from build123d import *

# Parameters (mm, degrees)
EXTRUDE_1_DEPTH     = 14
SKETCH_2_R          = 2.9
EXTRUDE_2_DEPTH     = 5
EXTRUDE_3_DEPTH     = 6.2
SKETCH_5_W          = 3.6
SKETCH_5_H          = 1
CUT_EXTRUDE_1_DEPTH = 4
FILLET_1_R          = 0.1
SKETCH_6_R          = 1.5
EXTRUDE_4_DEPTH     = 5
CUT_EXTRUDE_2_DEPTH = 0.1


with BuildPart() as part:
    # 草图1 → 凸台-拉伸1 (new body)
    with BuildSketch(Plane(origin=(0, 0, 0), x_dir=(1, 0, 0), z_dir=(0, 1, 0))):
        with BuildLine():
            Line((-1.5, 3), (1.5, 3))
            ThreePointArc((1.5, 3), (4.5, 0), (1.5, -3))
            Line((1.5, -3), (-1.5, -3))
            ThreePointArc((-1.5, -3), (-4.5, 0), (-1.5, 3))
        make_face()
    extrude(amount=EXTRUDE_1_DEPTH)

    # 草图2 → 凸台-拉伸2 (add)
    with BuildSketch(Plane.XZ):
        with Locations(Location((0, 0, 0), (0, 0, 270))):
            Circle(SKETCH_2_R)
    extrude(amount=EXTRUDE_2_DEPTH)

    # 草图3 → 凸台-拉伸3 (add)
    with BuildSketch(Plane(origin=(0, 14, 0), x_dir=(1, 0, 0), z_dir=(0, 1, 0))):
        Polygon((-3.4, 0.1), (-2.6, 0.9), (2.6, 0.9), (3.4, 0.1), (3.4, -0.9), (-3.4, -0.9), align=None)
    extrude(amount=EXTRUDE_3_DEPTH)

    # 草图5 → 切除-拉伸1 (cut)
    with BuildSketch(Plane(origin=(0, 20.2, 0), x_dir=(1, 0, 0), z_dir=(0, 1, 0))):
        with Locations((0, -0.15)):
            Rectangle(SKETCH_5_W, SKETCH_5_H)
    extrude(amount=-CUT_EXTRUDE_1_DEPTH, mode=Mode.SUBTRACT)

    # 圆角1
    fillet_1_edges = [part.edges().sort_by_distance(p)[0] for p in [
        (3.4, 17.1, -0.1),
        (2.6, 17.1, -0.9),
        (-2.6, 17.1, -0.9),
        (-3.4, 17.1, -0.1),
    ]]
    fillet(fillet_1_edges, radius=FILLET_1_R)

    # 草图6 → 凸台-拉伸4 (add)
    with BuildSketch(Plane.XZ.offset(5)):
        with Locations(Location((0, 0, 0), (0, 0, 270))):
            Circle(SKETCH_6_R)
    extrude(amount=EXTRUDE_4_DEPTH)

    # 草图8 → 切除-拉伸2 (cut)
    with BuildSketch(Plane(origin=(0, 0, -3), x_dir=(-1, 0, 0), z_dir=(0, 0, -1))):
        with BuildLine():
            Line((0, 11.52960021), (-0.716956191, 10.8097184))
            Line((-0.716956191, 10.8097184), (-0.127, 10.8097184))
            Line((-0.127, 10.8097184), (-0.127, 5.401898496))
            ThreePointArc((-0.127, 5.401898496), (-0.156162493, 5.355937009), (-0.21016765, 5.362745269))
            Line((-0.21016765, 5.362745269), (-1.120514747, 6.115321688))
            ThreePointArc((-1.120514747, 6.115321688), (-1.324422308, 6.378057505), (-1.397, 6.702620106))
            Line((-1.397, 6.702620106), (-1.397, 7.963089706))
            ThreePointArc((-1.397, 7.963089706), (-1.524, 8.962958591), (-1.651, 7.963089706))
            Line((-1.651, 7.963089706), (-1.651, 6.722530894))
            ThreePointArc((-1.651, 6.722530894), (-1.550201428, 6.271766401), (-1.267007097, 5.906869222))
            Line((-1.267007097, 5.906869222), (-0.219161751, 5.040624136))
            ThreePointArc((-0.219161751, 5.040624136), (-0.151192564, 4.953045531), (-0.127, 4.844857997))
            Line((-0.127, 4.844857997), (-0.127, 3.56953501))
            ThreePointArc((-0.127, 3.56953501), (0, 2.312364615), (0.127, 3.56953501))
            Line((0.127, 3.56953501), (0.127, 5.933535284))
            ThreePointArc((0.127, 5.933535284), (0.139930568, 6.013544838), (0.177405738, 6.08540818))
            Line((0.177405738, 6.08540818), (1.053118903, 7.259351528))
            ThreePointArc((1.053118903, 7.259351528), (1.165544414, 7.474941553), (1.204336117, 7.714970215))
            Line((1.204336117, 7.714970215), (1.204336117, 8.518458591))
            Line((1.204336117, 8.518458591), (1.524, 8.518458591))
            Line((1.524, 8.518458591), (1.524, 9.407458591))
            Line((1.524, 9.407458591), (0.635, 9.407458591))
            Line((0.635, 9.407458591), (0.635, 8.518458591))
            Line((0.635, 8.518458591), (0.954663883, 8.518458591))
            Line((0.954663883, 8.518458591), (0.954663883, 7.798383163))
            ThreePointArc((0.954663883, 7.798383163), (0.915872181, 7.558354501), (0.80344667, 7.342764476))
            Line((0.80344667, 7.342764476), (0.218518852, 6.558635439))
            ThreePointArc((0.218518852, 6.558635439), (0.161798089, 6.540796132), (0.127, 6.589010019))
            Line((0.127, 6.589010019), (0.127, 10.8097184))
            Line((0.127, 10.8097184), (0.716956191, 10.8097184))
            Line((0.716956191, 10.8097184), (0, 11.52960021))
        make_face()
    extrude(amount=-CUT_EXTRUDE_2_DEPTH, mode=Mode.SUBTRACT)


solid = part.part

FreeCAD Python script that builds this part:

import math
import FreeCAD as App
import Part
import Sketcher
from FreeCAD import Vector
Q = App.Units.Quantity


def edges_at(feature, points):
    """Names of the edges that pass closest to the given points."""
    edges = feature.Shape.Edges
    near = lambda p: min(range(len(edges)), key=lambda i: edges[i].distToShape(Part.Vertex(*p))[0])
    return sorted({f"Edge{near(p) + 1}" for p in points})


def add_polygon(sketch, points):
    """Adds a closed chain of lines whose ends are joined by coincident constraints."""
    first, n = sketch.GeometryCount, len(points)
    for a, b in zip(points, points[1:] + points[:1]):
        sketch.addGeometry(Part.LineSegment(App.Vector(*a, 0), App.Vector(*b, 0)), False)
    for i in range(n):
        sketch.addConstraint(Sketcher.Constraint("Coincident", first + i, 2, first + (i + 1) % n, 1))

doc = App.newDocument("Part")
body = doc.addObject("PartDesign::Body", "Body")

# Sketch on XZ plane
sketch1 = body.newObject("Sketcher::SketchObject", "Sketch")
sketch1.AttachmentSupport = (doc.getObject("XZ_Plane"), [""])
sketch1.MapMode = "FlatFace"
sketch1.addGeometry(Part.LineSegment(Vector(1.5, -3, 0), Vector(-1.5, -3, 0)), False)
sketch1.addGeometry(Part.ArcOfCircle(Part.Circle(Vector(-1.5, 0, 0), Vector(0, 0, 1), 3), math.radians(90), math.radians(270)), False)
sketch1.addGeometry(Part.LineSegment(Vector(-1.5, 3, 0), Vector(1.5, 3, 0)), False)
sketch1.addGeometry(Part.ArcOfCircle(Part.Circle(Vector(1.5, 0, 0), Vector(0, 0, 1), 3), math.radians(-90), math.radians(90)), False)
sketch1.addConstraint(Sketcher.Constraint("Tangent", 0, 2, 1, 2))
sketch1.addConstraint(Sketcher.Constraint("Tangent", 1, 1, 2, 1))
sketch1.addConstraint(Sketcher.Constraint("Tangent", 2, 2, 3, 2))
sketch1.addConstraint(Sketcher.Constraint("Tangent", 3, 1, 0, 1))
sketch1.addConstraint(Sketcher.Constraint("Horizontal", 0))
sketch1.addConstraint(Sketcher.Constraint("Horizontal", 2))
sketch1.addConstraint(Sketcher.Constraint("Symmetric", 1, 3, 3, 3, -1, 1))
sketch1.addConstraint(Sketcher.Constraint("Radius", 1, Q("3 mm")))
sketch1.addConstraint(Sketcher.Constraint("DistanceX", 0, 2, 0, 1, Q("3 mm")))
pad1 = body.newObject("PartDesign::Pad", "Pad")
pad1.Profile = sketch1
pad1.Length = 14
pad1.Reversed = True

# Sketch on XZ plane
sketch2 = body.newObject("Sketcher::SketchObject", "Sketch001")
sketch2.AttachmentSupport = (doc.getObject("XZ_Plane"), [""])
sketch2.MapMode = "FlatFace"
sketch2.addGeometry(Part.Circle(Vector(0, 0, 0), Vector(0, 0, 1), 2.9), False)
sketch2.addConstraint(Sketcher.Constraint("Coincident", 0, 3, -1, 1))
sketch2.addConstraint(Sketcher.Constraint("Diameter", 0, Q("5.8 mm")))
pad2 = body.newObject("PartDesign::Pad", "Pad001")
pad2.Profile = sketch2
pad2.Length = 5

# Sketch on XZ plane
sketch3 = body.newObject("Sketcher::SketchObject", "Sketch002")
sketch3.AttachmentSupport = (doc.getObject("XZ_Plane"), [""])
sketch3.MapMode = "FlatFace"
sketch3.AttachmentOffset = App.Placement(Vector(0, 0, -14), App.Rotation())
add_polygon(sketch3, [(-2.6, -0.9), (-3.4, -0.1), (-3.4, 0.9), (3.4, 0.9), (3.4, -0.1), (2.6, -0.9)])  # lines 0-5
sketch3.addConstraint(Sketcher.Constraint("Vertical", 1))
sketch3.addConstraint(Sketcher.Constraint("Horizontal", 2))
sketch3.addConstraint(Sketcher.Constraint("Vertical", 3))
sketch3.addConstraint(Sketcher.Constraint("Horizontal", 5))
sketch3.addConstraint(Sketcher.Constraint("Symmetric", 0, 2, 3, 2, -2))
sketch3.addConstraint(Sketcher.Constraint("Perpendicular", 0, 4))
sketch3.addConstraint(Sketcher.Constraint("Equal", 0, 4))
sketch3.addConstraint(Sketcher.Constraint("DistanceY", 1, 1, 1, 2, Q("1 mm")))
sketch3.addConstraint(Sketcher.Constraint("DistanceX", 2, 1, 2, 2, Q("6.8 mm")))
sketch3.addConstraint(Sketcher.Constraint("DistanceX", 5, 2, 5, 1, Q("5.2 mm")))
sketch3.addConstraint(Sketcher.Constraint("DistanceY", 0, 2, -1, 1, Q("0.1 mm")))
pad3 = body.newObject("PartDesign::Pad", "Pad002")
pad3.Profile = sketch3
pad3.Length = 6.2
pad3.Reversed = True

# Sketch on XZ plane
sketch4 = body.newObject("Sketcher::SketchObject", "Sketch003")
sketch4.AttachmentSupport = (doc.getObject("XZ_Plane"), [""])
sketch4.MapMode = "FlatFace"
sketch4.AttachmentOffset = App.Placement(Vector(0, 0, -20.2), App.Rotation())
add_polygon(sketch4, [(-1.8, -0.3), (-1.8, 0.7), (1.8, 0.7), (1.8, -0.3)])  # lines 0-3
sketch4.addConstraint(Sketcher.Constraint("Vertical", 0))
sketch4.addConstraint(Sketcher.Constraint("Horizontal", 1))
sketch4.addConstraint(Sketcher.Constraint("Vertical", 2))
sketch4.addConstraint(Sketcher.Constraint("Horizontal", 3))
sketch4.addConstraint(Sketcher.Constraint("DistanceY", 0, 1, 0, 2, Q("1 mm")))
sketch4.addConstraint(Sketcher.Constraint("DistanceX", 1, 1, 1, 2, Q("3.6 mm")))
sketch4.addConstraint(Sketcher.Constraint("DistanceX", 0, 2, -1, 1, Q("1.8 mm")))
sketch4.addConstraint(Sketcher.Constraint("DistanceY", -1, 1, 0, 2, Q("0.65 mm")))
pocket1 = body.newObject("PartDesign::Pocket", "Pocket")
pocket1.Profile = sketch4
pocket1.Length = 4
pocket1.Reversed = True
doc.recompute()

fillet = body.newObject("PartDesign::Fillet", "Fillet")
fillet.Base = (pocket1, edges_at(pocket1, [
    (3.4, 17.1, -0.1),
    (2.6, 17.1, -0.9),
    (-2.6, 17.1, -0.9),
    (-3.4, 17.1, -0.1),
]))
fillet.Radius = 0.1

# Sketch on XZ plane
sketch5 = body.newObject("Sketcher::SketchObject", "Sketch004")
sketch5.AttachmentSupport = (doc.getObject("XZ_Plane"), [""])
sketch5.MapMode = "FlatFace"
sketch5.AttachmentOffset = App.Placement(Vector(0, 0, 5), App.Rotation())
sketch5.addGeometry(Part.Circle(Vector(0, 0, 0), Vector(0, 0, 1), 1.5), False)
sketch5.addConstraint(Sketcher.Constraint("Coincident", 0, 3, -1, 1))
sketch5.addConstraint(Sketcher.Constraint("Diameter", 0, Q("3 mm")))
pad4 = body.newObject("PartDesign::Pad", "Pad003")
pad4.Profile = sketch5
pad4.Length = 5

# Sketch on XY plane
sketch6 = body.newObject("Sketcher::SketchObject", "Sketch005")
sketch6.AttachmentSupport = (doc.getObject("XY_Plane"), [""])
sketch6.MapMode = "FlatFace"
sketch6.AttachmentOffset = App.Placement(Vector(0, 0, -3), App.Rotation())
sketch6.addGeometry(Part.LineSegment(Vector(0, 11.53, 0), Vector(0.72, 10.81, 0)), False)
sketch6.addGeometry(Part.LineSegment(Vector(0.72, 10.81, 0), Vector(0.13, 10.81, 0)), False)
sketch6.addGeometry(Part.LineSegment(Vector(0.13, 10.81, 0), Vector(0.13, 5.4, 0)), False)
sketch6.addGeometry(Part.ArcOfCircle(Part.Circle(Vector(0.18, 5.4, 0), Vector(0, 0, 1), 0.05), math.radians(180), math.radians(310)), False)
sketch6.addGeometry(Part.LineSegment(Vector(0.21, 5.36, 0), Vector(1.12, 6.12, 0)), False)
sketch6.addGeometry(Part.ArcOfCircle(Part.Circle(Vector(0.64, 6.7, 0), Vector(0, 0, 1), 0.76), math.radians(-50), math.radians(0)), False)
sketch6.addGeometry(Part.LineSegment(Vector(1.4, 6.7, 0), Vector(1.4, 7.96, 0)), False)
sketch6.addGeometry(Part.ArcOfCircle(Part.Circle(Vector(1.52, 8.45, 0), Vector(0, 0, 1), 0.51), math.radians(-76), math.radians(256)), False)
sketch6.addGeometry(Part.LineSegment(Vector(1.65, 7.96, 0), Vector(1.65, 6.72, 0)), False)
sketch6.addGeometry(Part.ArcOfCircle(Part.Circle(Vector(0.59, 6.72, 0), Vector(0, 0, 1), 1.06), math.radians(-50), math.radians(0)), False)
sketch6.addGeometry(Part.LineSegment(Vector(1.27, 5.91, 0), Vector(0.22, 5.04, 0)), False)
sketch6.addGeometry(Part.ArcOfCircle(Part.Circle(Vector(0.38, 4.84, 0), Vector(0, 0, 1), 0.25), math.radians(130), math.radians(180)), False)
sketch6.addGeometry(Part.LineSegment(Vector(0.13, 4.84, 0), Vector(0.13, 3.57, 0)), False)
sketch6.addGeometry(Part.ArcOfCircle(Part.Circle(Vector(0, 2.95, 0), Vector(0, 0, 1), 0.64), math.radians(102), math.radians(438)), False)
sketch6.addGeometry(Part.LineSegment(Vector(-0.13, 3.57, 0), Vector(-0.13, 5.93, 0)), False)
sketch6.addGeometry(Part.ArcOfCircle(Part.Circle(Vector(-0.38, 5.93, 0), Vector(0, 0, 1), 0.25), math.radians(0), math.radians(37)), False)
sketch6.addGeometry(Part.LineSegment(Vector(-0.18, 6.09, 0), Vector(-1.05, 7.26, 0)), False)
sketch6.addGeometry(Part.ArcOfCircle(Part.Circle(Vector(-0.44, 7.71, 0), Vector(0, 0, 1), 0.76), math.radians(-180), math.radians(-143)), False)
sketch6.addGeometry(Part.LineSegment(Vector(-1.2, 7.71, 0), Vector(-1.2, 8.52, 0)), False)
sketch6.addGeometry(Part.LineSegment(Vector(-1.2, 8.52, 0), Vector(-1.52, 8.52, 0)), False)
sketch6.addGeometry(Part.LineSegment(Vector(-1.52, 8.52, 0), Vector(-1.52, 9.41, 0)), False)
sketch6.addGeometry(Part.LineSegment(Vector(-1.52, 9.41, 0), Vector(-0.64, 9.41, 0)), False)
sketch6.addGeometry(Part.LineSegment(Vector(-0.64, 9.41, 0), Vector(-0.64, 8.52, 0)), False)
sketch6.addGeometry(Part.LineSegment(Vector(-0.64, 8.52, 0), Vector(-0.95, 8.52, 0)), False)
sketch6.addGeometry(Part.LineSegment(Vector(-0.95, 8.52, 0), Vector(-0.95, 7.8, 0)), False)
sketch6.addGeometry(Part.ArcOfCircle(Part.Circle(Vector(-0.19, 7.8, 0), Vector(0, 0, 1), 0.76), math.radians(180), math.radians(217)), False)
sketch6.addGeometry(Part.LineSegment(Vector(-0.8, 7.34, 0), Vector(-0.22, 6.56, 0)), False)
sketch6.addGeometry(Part.ArcOfCircle(Part.Circle(Vector(-0.18, 6.59, 0), Vector(0, 0, 1), 0.05), math.radians(-143), math.radians(0)), False)
sketch6.addGeometry(Part.LineSegment(Vector(-0.13, 6.59, 0), Vector(-0.13, 10.81, 0)), False)
sketch6.addGeometry(Part.LineSegment(Vector(-0.13, 10.81, 0), Vector(-0.72, 10.81, 0)), False)
sketch6.addGeometry(Part.LineSegment(Vector(-0.72, 10.81, 0), Vector(0, 11.53, 0)), False)
sketch6.addConstraint(Sketcher.Constraint("Coincident", 0, 2, 1, 1))
sketch6.addConstraint(Sketcher.Constraint("Coincident", 1, 2, 2, 1))
sketch6.addConstraint(Sketcher.Constraint("Tangent", 2, 2, 3, 1))
sketch6.addConstraint(Sketcher.Constraint("Tangent", 3, 2, 4, 1))
sketch6.addConstraint(Sketcher.Constraint("Tangent", 4, 2, 5, 1))
sketch6.addConstraint(Sketcher.Constraint("Tangent", 5, 2, 6, 1))
sketch6.addConstraint(Sketcher.Constraint("Coincident", 6, 2, 7, 2))
sketch6.addConstraint(Sketcher.Constraint("Coincident", 7, 1, 8, 1))
sketch6.addConstraint(Sketcher.Constraint("Tangent", 8, 2, 9, 2))
sketch6.addConstraint(Sketcher.Constraint("Tangent", 9, 1, 10, 1))
sketch6.addConstraint(Sketcher.Constraint("Tangent", 10, 2, 11, 1))
sketch6.addConstraint(Sketcher.Constraint("Tangent", 11, 2, 12, 1))
sketch6.addConstraint(Sketcher.Constraint("Coincident", 12, 2, 13, 2))
sketch6.addConstraint(Sketcher.Constraint("Coincident", 13, 1, 14, 1))
sketch6.addConstraint(Sketcher.Constraint("Tangent", 14, 2, 15, 1))
sketch6.addConstraint(Sketcher.Constraint("Tangent", 15, 2, 16, 1))
sketch6.addConstraint(Sketcher.Constraint("Tangent", 16, 2, 17, 2))
sketch6.addConstraint(Sketcher.Constraint("Tangent", 17, 1, 18, 1))
sketch6.addConstraint(Sketcher.Constraint("Coincident", 18, 2, 19, 1))
sketch6.addConstraint(Sketcher.Constraint("Coincident", 19, 2, 20, 1))
sketch6.addConstraint(Sketcher.Constraint("Coincident", 20, 2, 21, 1))
sketch6.addConstraint(Sketcher.Constraint("Coincident", 21, 2, 22, 1))
sketch6.addConstraint(Sketcher.Constraint("Coincident", 22, 2, 23, 1))
sketch6.addConstraint(Sketcher.Constraint("Coincident", 23, 2, 24, 1))
sketch6.addConstraint(Sketcher.Constraint("Tangent", 24, 2, 25, 1))
sketch6.addConstraint(Sketcher.Constraint("Tangent", 25, 2, 26, 1))
sketch6.addConstraint(Sketcher.Constraint("Tangent", 26, 2, 27, 1))
sketch6.addConstraint(Sketcher.Constraint("Tangent", 27, 2, 28, 1))
sketch6.addConstraint(Sketcher.Constraint("Coincident", 28, 2, 29, 1))
sketch6.addConstraint(Sketcher.Constraint("Coincident", 29, 2, 30, 1))
sketch6.addConstraint(Sketcher.Constraint("Coincident", 30, 2, 0, 1))
sketch6.addConstraint(Sketcher.Constraint("Horizontal", 1))
sketch6.addConstraint(Sketcher.Constraint("Vertical", 2))
sketch6.addConstraint(Sketcher.Constraint("Vertical", 6))
sketch6.addConstraint(Sketcher.Constraint("Vertical", 8))
sketch6.addConstraint(Sketcher.Constraint("Vertical", 12))
sketch6.addConstraint(Sketcher.Constraint("Vertical", 14))
sketch6.addConstraint(Sketcher.Constraint("Vertical", 18))
sketch6.addConstraint(Sketcher.Constraint("Horizontal", 19))
sketch6.addConstraint(Sketcher.Constraint("Vertical", 20))
sketch6.addConstraint(Sketcher.Constraint("Horizontal", 21))
sketch6.addConstraint(Sketcher.Constraint("Vertical", 22))
sketch6.addConstraint(Sketcher.Constraint("Horizontal", 23))
sketch6.addConstraint(Sketcher.Constraint("Vertical", 24))
sketch6.addConstraint(Sketcher.Constraint("Vertical", 28))
sketch6.addConstraint(Sketcher.Constraint("Horizontal", 29))
sketch6.addConstraint(Sketcher.Constraint("Equal", 11, 15))
sketch6.addConstraint(Sketcher.Constraint("Equal", 5, 17))
sketch6.addConstraint(Sketcher.Constraint("Equal", 17, 25))
sketch6.addConstraint(Sketcher.Constraint("Equal", 3, 27))
sketch6.addConstraint(Sketcher.Constraint("Symmetric", 12, 2, 13, 1, -2))
sketch6.addConstraint(Sketcher.Constraint("Symmetric", 1, 2, 28, 2, -2))
sketch6.addConstraint(Sketcher.Constraint("PointOnObject", 30, 2, -2))
sketch6.addConstraint(Sketcher.Constraint("Parallel", 4, 10))
sketch6.addConstraint(Sketcher.Constraint("Parallel", 16, 26))
sketch6.addConstraint(Sketcher.Constraint("Horizontal", 6, 2, 7, 1))
sketch6.addConstraint(Sketcher.Constraint("Horizontal", 19, 2, 22, 2))
sketch6.addConstraint(Sketcher.Constraint("Vertical", 2, 2, 11, 2))
sketch6.addConstraint(Sketcher.Constraint("Equal", 19, 23))
sketch6.addConstraint(Sketcher.Constraint("Equal", 1, 29))
sketch6.addConstraint(Sketcher.Constraint("Equal", 21, 20))
sketch6.addConstraint(Sketcher.Constraint("Radius", 5, Q("0.762 mm")))
sketch6.addConstraint(Sketcher.Constraint("Radius", 7, Q("0.508 mm")))
sketch6.addConstraint(Sketcher.Constraint("Radius", 11, Q("0.254 mm")))
sketch6.addConstraint(Sketcher.Constraint("Radius", 13, Q("0.635 mm")))
sketch6.addConstraint(Sketcher.Constraint("Radius", 3, Q("0.0508 mm")))
sketch6.addConstraint(Sketcher.Constraint("DistanceX", 21, 1, 21, 2, Q("0.889 mm")))
sketch6.addConstraint(Sketcher.Constraint("DistanceY", 14, 1, 14, 2, Q("2.364 mm")))
sketch6.addConstraint(Sketcher.Constraint("Distance", 0, Q("1.016 mm")))
sketch6.addConstraint(Sketcher.Constraint("DistanceX", -1, 1, 5, 3, Q("0.635 mm")))
sketch6.addConstraint(Sketcher.Constraint("DistanceX", -1, 1, 7, 3, Q("1.524 mm")))
sketch6.addConstraint(Sketcher.Constraint("DistanceX", -1, 1, 11, 3, Q("0.381 mm")))
sketch6.addConstraint(Sketcher.Constraint("DistanceX", 19, 2, -1, 1, Q("1.524 mm")))
sketch6.addConstraint(Sketcher.Constraint("Radius", 9, Q("1.058294 mm")))
sketch6.addConstraint(Sketcher.Constraint("DistanceY", 2, 2, 2, 1, Q("5.40782 mm")))
sketch6.addConstraint(Sketcher.Constraint("DistanceY", 6, 1, 6, 2, Q("1.26047 mm")))
sketch6.addConstraint(Sketcher.Constraint("DistanceY", 8, 2, 8, 1, Q("1.240559 mm")))
sketch6.addConstraint(Sketcher.Constraint("DistanceY", 18, 1, 18, 2, Q("0.803488 mm")))
sketch6.addConstraint(Sketcher.Constraint("DistanceY", 28, 1, 28, 2, Q("4.220708 mm")))
sketch6.addConstraint(Sketcher.Constraint("DistanceY", -1, 1, 3, 3, Q("5.401898 mm")))
sketch6.addConstraint(Sketcher.Constraint("DistanceY", -1, 1, 30, 2, Q("11.5296 mm")))
sketch6.addConstraint(Sketcher.Constraint("DistanceY", 11, 3, 7, 3, Q("3.610101 mm")))
sketch6.addConstraint(Sketcher.Constraint("DistanceY", 15, 2, 27, 3, Q("0.503602 mm")))
sketch6.addConstraint(Sketcher.Constraint("DistanceY", 14, 2, 26, 2, Q("0.6251 mm")))
sketch6.addConstraint(Sketcher.Constraint("DistanceX", 19, 2, 19, 1, Q("0.319664 mm")))
pocket2 = body.newObject("PartDesign::Pocket", "Pocket001")
pocket2.Profile = sketch6
pocket2.Length = 0.1
pocket2.Reversed = True

doc.recompute()
